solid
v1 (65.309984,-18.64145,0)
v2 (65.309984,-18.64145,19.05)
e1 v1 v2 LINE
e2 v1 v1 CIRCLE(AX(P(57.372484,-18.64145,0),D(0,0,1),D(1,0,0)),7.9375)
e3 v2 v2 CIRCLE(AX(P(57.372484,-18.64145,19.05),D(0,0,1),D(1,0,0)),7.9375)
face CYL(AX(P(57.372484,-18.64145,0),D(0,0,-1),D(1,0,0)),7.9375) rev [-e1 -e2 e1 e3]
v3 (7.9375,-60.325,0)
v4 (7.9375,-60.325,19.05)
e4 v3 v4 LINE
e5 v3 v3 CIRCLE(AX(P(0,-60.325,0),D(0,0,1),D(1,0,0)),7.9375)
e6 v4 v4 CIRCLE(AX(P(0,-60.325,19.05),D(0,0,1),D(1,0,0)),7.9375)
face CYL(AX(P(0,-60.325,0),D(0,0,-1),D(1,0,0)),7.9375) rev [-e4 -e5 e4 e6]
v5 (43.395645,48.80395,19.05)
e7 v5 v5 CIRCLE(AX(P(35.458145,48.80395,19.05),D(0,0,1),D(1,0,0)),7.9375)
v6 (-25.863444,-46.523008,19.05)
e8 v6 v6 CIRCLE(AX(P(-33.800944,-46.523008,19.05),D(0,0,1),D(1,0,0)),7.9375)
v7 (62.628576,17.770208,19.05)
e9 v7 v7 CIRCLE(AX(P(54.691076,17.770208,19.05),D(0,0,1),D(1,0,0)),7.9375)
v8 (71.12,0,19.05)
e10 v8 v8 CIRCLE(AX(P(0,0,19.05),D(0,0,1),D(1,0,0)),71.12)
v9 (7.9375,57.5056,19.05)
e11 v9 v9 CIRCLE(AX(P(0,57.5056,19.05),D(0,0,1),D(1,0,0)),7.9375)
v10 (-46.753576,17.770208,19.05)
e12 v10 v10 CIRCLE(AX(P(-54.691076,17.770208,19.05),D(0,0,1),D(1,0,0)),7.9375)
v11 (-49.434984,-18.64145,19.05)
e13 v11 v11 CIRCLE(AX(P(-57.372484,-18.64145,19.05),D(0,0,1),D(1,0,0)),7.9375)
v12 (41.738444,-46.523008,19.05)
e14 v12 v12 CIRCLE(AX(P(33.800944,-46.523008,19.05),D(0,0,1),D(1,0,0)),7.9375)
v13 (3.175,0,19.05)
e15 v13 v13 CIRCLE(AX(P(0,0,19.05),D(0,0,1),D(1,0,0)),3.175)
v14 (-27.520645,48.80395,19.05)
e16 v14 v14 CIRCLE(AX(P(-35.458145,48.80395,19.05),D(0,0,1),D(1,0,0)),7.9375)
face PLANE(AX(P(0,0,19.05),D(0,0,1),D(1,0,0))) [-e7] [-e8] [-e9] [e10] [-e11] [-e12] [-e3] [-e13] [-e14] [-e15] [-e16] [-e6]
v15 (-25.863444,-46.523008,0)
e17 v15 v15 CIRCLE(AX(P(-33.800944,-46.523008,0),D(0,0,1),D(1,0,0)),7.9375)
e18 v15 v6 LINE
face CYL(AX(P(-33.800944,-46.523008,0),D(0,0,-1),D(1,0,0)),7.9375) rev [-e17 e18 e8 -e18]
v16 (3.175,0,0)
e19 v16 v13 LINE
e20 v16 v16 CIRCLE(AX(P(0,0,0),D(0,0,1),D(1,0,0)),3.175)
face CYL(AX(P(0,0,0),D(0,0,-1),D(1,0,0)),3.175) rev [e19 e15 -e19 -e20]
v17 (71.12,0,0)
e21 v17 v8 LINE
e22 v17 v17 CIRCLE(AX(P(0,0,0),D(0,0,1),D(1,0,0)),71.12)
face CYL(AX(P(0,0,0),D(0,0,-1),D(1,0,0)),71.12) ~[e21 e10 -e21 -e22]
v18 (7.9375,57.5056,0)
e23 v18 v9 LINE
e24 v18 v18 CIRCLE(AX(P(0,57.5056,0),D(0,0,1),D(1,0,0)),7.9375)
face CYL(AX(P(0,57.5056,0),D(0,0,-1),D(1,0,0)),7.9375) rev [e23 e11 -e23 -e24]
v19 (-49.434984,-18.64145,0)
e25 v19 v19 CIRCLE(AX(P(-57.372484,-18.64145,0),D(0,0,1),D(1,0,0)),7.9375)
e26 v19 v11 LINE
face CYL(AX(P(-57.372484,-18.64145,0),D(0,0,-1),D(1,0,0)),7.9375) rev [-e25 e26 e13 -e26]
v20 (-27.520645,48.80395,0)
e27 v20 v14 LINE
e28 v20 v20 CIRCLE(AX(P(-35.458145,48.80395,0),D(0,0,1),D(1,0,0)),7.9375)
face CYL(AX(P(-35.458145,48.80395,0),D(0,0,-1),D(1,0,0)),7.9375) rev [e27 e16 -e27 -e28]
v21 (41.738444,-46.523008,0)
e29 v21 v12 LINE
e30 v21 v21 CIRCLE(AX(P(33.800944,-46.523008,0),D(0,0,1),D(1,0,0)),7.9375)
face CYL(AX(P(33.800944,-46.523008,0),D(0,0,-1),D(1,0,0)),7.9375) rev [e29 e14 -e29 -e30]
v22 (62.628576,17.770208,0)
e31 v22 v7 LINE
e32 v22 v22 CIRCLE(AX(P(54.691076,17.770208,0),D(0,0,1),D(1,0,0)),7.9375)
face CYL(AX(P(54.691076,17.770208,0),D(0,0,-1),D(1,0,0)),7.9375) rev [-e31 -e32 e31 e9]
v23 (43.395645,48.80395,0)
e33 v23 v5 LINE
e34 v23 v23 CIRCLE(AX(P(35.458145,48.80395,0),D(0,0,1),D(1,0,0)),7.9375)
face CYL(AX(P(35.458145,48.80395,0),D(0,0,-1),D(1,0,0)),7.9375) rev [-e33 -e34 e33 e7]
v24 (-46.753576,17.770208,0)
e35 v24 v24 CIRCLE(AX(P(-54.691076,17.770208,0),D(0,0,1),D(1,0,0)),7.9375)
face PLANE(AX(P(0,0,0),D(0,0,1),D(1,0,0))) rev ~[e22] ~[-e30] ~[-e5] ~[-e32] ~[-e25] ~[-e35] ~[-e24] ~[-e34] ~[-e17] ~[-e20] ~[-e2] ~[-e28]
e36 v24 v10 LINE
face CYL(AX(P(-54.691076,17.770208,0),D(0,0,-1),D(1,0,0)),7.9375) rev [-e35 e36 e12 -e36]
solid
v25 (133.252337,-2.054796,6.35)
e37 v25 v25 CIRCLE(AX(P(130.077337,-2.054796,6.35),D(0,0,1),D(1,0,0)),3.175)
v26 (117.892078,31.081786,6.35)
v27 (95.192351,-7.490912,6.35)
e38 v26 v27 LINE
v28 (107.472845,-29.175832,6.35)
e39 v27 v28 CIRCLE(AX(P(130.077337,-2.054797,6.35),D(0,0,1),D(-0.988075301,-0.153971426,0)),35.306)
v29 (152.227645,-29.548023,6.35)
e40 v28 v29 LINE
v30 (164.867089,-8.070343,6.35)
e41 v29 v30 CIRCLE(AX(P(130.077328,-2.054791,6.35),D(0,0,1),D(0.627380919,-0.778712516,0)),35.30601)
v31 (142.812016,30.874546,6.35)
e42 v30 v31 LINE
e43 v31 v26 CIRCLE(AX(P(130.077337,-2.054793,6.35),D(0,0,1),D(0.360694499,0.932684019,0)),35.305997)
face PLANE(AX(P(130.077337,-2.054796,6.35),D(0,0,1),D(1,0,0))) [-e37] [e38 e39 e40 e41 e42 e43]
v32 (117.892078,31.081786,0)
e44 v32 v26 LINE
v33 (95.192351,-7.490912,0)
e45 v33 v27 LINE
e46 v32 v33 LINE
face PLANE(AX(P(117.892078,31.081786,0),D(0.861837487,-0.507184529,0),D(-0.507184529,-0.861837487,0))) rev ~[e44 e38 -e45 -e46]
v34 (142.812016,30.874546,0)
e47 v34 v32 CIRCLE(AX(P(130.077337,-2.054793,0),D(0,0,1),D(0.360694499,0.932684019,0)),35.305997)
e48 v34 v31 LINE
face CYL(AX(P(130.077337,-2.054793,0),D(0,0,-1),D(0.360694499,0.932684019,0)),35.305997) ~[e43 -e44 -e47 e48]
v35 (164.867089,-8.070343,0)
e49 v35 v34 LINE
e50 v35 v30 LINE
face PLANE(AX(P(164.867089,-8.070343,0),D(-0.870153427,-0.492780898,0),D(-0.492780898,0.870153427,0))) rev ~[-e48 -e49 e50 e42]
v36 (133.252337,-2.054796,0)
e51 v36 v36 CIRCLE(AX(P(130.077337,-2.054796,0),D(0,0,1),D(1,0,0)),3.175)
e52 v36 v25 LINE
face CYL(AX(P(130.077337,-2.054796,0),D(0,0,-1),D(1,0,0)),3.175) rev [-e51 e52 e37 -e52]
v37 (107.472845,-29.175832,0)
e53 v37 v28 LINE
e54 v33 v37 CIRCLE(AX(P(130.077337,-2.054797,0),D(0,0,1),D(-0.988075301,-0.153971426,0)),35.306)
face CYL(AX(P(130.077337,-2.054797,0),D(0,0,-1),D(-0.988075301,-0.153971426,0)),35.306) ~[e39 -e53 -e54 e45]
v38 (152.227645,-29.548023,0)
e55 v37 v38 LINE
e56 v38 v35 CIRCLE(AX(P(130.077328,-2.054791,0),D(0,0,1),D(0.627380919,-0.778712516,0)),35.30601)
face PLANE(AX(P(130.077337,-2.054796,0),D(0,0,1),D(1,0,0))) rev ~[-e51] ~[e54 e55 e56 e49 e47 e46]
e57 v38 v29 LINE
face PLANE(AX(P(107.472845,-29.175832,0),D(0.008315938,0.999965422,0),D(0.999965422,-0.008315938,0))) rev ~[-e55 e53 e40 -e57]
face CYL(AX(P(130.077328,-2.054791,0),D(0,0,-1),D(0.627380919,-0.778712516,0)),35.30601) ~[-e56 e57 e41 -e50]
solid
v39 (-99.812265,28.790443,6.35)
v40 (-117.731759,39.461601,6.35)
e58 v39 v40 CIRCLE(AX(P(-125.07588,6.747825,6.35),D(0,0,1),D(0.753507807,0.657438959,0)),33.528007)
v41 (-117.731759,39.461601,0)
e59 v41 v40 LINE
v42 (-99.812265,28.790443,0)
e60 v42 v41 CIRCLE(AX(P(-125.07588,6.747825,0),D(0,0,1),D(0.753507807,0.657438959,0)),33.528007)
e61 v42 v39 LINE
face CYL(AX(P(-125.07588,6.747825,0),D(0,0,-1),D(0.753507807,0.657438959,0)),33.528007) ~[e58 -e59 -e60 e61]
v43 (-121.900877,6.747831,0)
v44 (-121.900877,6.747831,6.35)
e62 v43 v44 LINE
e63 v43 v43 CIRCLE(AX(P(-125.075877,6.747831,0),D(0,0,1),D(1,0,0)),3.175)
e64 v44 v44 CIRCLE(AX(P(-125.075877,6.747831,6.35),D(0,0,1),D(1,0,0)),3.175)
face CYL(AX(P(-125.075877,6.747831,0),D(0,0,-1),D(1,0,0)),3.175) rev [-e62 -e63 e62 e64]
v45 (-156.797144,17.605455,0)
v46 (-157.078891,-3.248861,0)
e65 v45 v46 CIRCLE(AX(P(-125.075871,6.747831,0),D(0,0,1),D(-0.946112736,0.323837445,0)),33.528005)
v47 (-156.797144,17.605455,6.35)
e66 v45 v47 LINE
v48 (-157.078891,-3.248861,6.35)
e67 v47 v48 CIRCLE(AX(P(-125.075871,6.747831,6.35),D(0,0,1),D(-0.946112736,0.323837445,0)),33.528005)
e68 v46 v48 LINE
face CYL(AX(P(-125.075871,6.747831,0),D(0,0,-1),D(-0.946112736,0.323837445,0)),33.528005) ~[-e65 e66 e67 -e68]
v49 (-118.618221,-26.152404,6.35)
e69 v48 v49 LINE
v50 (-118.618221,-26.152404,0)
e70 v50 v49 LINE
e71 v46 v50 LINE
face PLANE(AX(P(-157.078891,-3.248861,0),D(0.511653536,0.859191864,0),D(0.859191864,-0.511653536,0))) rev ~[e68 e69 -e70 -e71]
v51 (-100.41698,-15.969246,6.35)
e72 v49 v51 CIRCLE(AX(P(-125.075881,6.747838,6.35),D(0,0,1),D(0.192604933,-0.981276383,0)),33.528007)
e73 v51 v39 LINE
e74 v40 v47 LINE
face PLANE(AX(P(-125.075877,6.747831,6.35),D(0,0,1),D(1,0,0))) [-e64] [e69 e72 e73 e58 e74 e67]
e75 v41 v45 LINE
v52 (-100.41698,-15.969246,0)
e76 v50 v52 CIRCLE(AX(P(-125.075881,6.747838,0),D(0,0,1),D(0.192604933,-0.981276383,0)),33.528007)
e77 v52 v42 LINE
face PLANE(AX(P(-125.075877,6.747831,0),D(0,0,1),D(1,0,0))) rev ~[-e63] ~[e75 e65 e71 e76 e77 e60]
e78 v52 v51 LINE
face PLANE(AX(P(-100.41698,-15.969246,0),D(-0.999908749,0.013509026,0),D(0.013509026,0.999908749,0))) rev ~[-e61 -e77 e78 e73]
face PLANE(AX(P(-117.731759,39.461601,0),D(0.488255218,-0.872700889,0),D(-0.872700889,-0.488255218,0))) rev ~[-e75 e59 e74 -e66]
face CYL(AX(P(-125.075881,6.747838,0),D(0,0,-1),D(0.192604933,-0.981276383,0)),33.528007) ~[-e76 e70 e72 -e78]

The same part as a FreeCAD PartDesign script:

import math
import FreeCAD as App
import Part
import Sketcher
Q = App.Units.Quantity

doc = App.newDocument("Part")
body = doc.addObject("PartDesign::Body", "Body")

sketch1 = body.newObject("Sketcher::SketchObject", "Sketch")
sketch1.AttachmentSupport = (doc.getObject("XY_Plane"), [""])
sketch1.MapMode = "FlatFace"
sketch1.addGeometry([
    Part.Circle(App.Vector(0, 0, 0), App.Vector(0, 0, 1), 71.12),
    Part.Circle(App.Vector(-33.800944, -46.523008, 0), App.Vector(0, 0, 1), 7.9375),
    Part.Circle(App.Vector(-57.372484, -18.64145, 0), App.Vector(0, 0, 1), 7.9375),
    Part.Circle(App.Vector(0, -60.325, 0), App.Vector(0, 0, 1), 7.9375),
    Part.Circle(App.Vector(33.800944, -46.523008, 0), App.Vector(0, 0, 1), 7.9375),
    Part.Circle(App.Vector(57.372484, -18.64145, 0), App.Vector(0, 0, 1), 7.9375),
    Part.Circle(App.Vector(-54.691076, 17.770208, 0), App.Vector(0, 0, 1), 7.9375),
    Part.Circle(App.Vector(-35.458145, 48.80395, 0), App.Vector(0, 0, 1), 7.9375),
    Part.Circle(App.Vector(0, 0, 0), App.Vector(0, 0, 1), 3.175),
    Part.Circle(App.Vector(54.691076, 17.770208, 0), App.Vector(0, 0, 1), 7.9375),
    Part.Circle(App.Vector(0, 57.5056, 0), App.Vector(0, 0, 1), 7.9375),
    Part.Circle(App.Vector(35.458145, 48.80395, 0), App.Vector(0, 0, 1), 7.9375),
], False)
sketch1.addConstraint([
    Sketcher.Constraint("Coincident", 0, 3, -1, 1),
    Sketcher.Constraint("Coincident", 8, 3, -1, 1),
    Sketcher.Constraint("Equal", 1, 2),
    Sketcher.Constraint("Equal", 2, 3),
    Sketcher.Constraint("Equal", 3, 4),
    Sketcher.Constraint("Equal", 4, 5),
    Sketcher.Constraint("Equal", 5, 6),
    Sketcher.Constraint("Equal", 6, 7),
    Sketcher.Constraint("Equal", 7, 9),
    Sketcher.Constraint("Equal", 9, 10),
    Sketcher.Constraint("Equal", 10, 11),
    Sketcher.Constraint("Symmetric", 1, 3, 4, 3, -2),
    Sketcher.Constraint("Symmetric", 2, 3, 5, 3, -2),
    Sketcher.Constraint("Symmetric", 6, 3, 9, 3, -2),
    Sketcher.Constraint("Symmetric", 7, 3, 11, 3, -2),
    Sketcher.Constraint("PointOnObject", 3, 3, -2),
    Sketcher.Constraint("PointOnObject", 10, 3, -2),
    Sketcher.Constraint("Diameter", 0, Q("5.6 in")),
    Sketcher.Constraint("Diameter", 8, Q("0.25 in")),
    Sketcher.Constraint("Diameter", 1, Q("0.625 in")),
    Sketcher.Constraint("DistanceY", 3, 3, -1, 1, Q("2.375 in")),
    Sketcher.Constraint("DistanceY", -1, 1, 10, 3, Q("2.264 in")),
    Sketcher.Constraint("DistanceY", 2, 3, 7, 3, Q("67.4454 mm")),
    Sketcher.Constraint("DistanceX", 7, 3, 1, 3, Q("1.657201 mm")),
    Sketcher.Constraint("DistanceY", 2, 3, -1, 1, Q("18.64145 mm")),
    Sketcher.Constraint("DistanceY", -1, 1, 6, 3, Q("17.770208 mm")),
    Sketcher.Constraint("DistanceX", 2, 3, 1, 3, Q("23.57154 mm")),
    Sketcher.Constraint("DistanceX", 1, 3, 4, 3, Q("67.601888 mm")),
    Sketcher.Constraint("DistanceX", 6, 3, 4, 3, Q("88.49202 mm")),
    Sketcher.Constraint("DistanceY", 1, 3, -1, 1, Q("46.523008 mm")),
])
pad1 = body.newObject("PartDesign::Pad", "Pad")
pad1.Profile = sketch1
pad1.Length = Q("0.75 in")
body2 = doc.addObject("PartDesign::Body", "Body001")
body2.AllowCompound = True

sketch2 = body2.newObject("Sketcher::SketchObject", "Sketch001")
sketch2.AttachmentSupport = (doc.getObject("XY_Plane001"), [""])
sketch2.MapMode = "FlatFace"
sketch2.addGeometry([
    Part.LineSegment(App.Vector(-117.731759, 39.461601, 0), App.Vector(-156.797144, 17.605455, 0)),
    Part.ArcOfCircle(Part.Circle(App.Vector(-125.075871, 6.747831, 0), App.Vector(0, 0, 1), 33.528005), math.radians(161.104843), math.radians(197.347091)),
    Part.LineSegment(App.Vector(-157.078891, -3.248861, 0), App.Vector(-118.618221, -26.152404, 0)),
    Part.ArcOfCircle(Part.Circle(App.Vector(-125.075881, 6.747838, 0), App.Vector(0, 0, 1), 33.528007), math.radians(-78.895156), math.radians(-42.65291)),
    Part.LineSegment(App.Vector(-100.41698, -15.969246, 0), App.Vector(-99.812265, 28.790443, 0)),
    Part.ArcOfCircle(Part.Circle(App.Vector(-125.07588, 6.747825, 0), App.Vector(0, 0, 1), 33.528007), math.radians(41.104845), math.radians(77.34709)),
    Part.Circle(App.Vector(-125.075877, 6.747831, 0), App.Vector(0, 0, 1), 3.175),
    Part.LineSegment(App.Vector(117.892078, 31.081786, 0), App.Vector(95.192351, -7.490912, 0)),
    Part.ArcOfCircle(Part.Circle(App.Vector(130.077337, -2.054797, 0), App.Vector(0, 0, 1), 35.306), math.radians(-171.142853), math.radians(-129.810096)),
    Part.LineSegment(App.Vector(107.472845, -29.175832, 0), App.Vector(152.227645, -29.548023, 0)),
    Part.ArcOfCircle(Part.Circle(App.Vector(130.077328, -2.054791, 0), App.Vector(0, 0, 1), 35.30601), math.radians(-51.142845), math.radians(-9.810101)),
    Part.LineSegment(App.Vector(164.867089, -8.070343, 0), App.Vector(142.812016, 30.874546, 0)),
    Part.ArcOfCircle(Part.Circle(App.Vector(130.077337, -2.054793, 0), App.Vector(0, 0, 1), 35.305997), math.radians(68.857146), math.radians(110.189906)),
    Part.Circle(App.Vector(130.077337, -2.054796, 0), App.Vector(0, 0, 1), 3.175),
], False)
sketch2.addConstraint([
    Sketcher.Constraint("Coincident", 0, 2, 1, 1),
    Sketcher.Constraint("Coincident", 1, 2, 2, 1),
    Sketcher.Constraint("Coincident", 2, 2, 3, 1),
    Sketcher.Constraint("Coincident", 3, 2, 4, 1),
    Sketcher.Constraint("Coincident", 4, 2, 5, 1),
    Sketcher.Constraint("Coincident", 5, 2, 0, 1),
    Sketcher.Constraint("Coincident", 7, 2, 8, 1),
    Sketcher.Constraint("Coincident", 8, 2, 9, 1),
    Sketcher.Constraint("Coincident", 9, 2, 10, 1),
    Sketcher.Constraint("Coincident", 10, 2, 11, 1),
    Sketcher.Constraint("Coincident", 11, 2, 12, 1),
    Sketcher.Constraint("Coincident", 12, 2, 7, 1),
    Sketcher.Constraint("Coincident", 6, 3, 1, 3),
    Sketcher.Constraint("Coincident", 12, 3, 8, 3),
    Sketcher.Constraint("Coincident", 13, 3, 8, 3),
    Sketcher.Constraint("Equal", 1, 3),
    Sketcher.Constraint("Equal", 3, 5),
    Sketcher.Constraint("Equal", 6, 13),
    Sketcher.Constraint("Vertical", 3, 3, 5, 3),
    Sketcher.Constraint("Equal", 0, 2),
    Sketcher.Constraint("Equal", 2, 4),
    Sketcher.Constraint("Equal", 7, 9),
    Sketcher.Constraint("Equal", 9, 11),
    Sketcher.Constraint("Diameter", 6, Q("0.25 in")),
    Sketcher.Constraint("Radius", 8, Q("1.39 in")),
    Sketcher.Constraint("Radius", 12, Q("1.3899999 in")),
    Sketcher.Constraint("Radius", 10, Q("35.30601 mm")),
    Sketcher.Constraint("DistanceX", 8, 2, 9, 2, Q("1.762 in")),
    Sketcher.Constraint("Radius", 1, Q("33.528005 mm")),
    Sketcher.Constraint("DistanceX", 12, 2, 11, 2, Q("0.9810999 in")),
    Sketcher.Constraint("DistanceY", -1, 1, 5, 2, Q("39.461601 mm")),
    Sketcher.Constraint("DistanceX", 1, 3, 10, 3, Q("255.1532 mm")),
    Sketcher.Constraint("DistanceY", 1, 2, 3, 3, Q("9.996699 mm")),
    Sketcher.Constraint("DistanceX", 5, 3, 3, 2, Q("24.6589 mm")),
    Sketcher.Constraint("DistanceX", 1, 3, -1, 1, Q("125.075871 mm")),
    Sketcher.Constraint("DistanceY", -1, 1, 1, 3, Q("6.747831 mm")),
    Sketcher.Constraint("DistanceX", 3, 3, -1, 1, Q("125.075881 mm")),
    Sketcher.Constraint("DistanceY", 10, 3, -1, 1, Q("2.054791 mm")),
    Sketcher.Constraint("DistanceX", 1, 2, -1, 1, Q("157.078891 mm")),
    Sketcher.Constraint("DistanceX", 2, 2, -1, 1, Q("118.618221 mm")),
    Sketcher.Constraint("DistanceX", 5, 2, -1, 1, Q("117.731759 mm")),
    Sketcher.Constraint("DistanceX", -1, 1, 7, 2, Q("95.192351 mm")),
    Sketcher.Constraint("DistanceY", 7, 2, -1, 1, Q("7.490912 mm")),
    Sketcher.Constraint("DistanceY", 8, 2, -1, 1, Q("29.175832 mm")),
    Sketcher.Constraint("DistanceX", -1, 1, 10, 2, Q("164.867089 mm")),
])
pad2 = body2.newObject("PartDesign::Pad", "Pad001")
pad2.Profile = sketch2
pad2.Length = Q("0.25 in")

doc.recompute()
